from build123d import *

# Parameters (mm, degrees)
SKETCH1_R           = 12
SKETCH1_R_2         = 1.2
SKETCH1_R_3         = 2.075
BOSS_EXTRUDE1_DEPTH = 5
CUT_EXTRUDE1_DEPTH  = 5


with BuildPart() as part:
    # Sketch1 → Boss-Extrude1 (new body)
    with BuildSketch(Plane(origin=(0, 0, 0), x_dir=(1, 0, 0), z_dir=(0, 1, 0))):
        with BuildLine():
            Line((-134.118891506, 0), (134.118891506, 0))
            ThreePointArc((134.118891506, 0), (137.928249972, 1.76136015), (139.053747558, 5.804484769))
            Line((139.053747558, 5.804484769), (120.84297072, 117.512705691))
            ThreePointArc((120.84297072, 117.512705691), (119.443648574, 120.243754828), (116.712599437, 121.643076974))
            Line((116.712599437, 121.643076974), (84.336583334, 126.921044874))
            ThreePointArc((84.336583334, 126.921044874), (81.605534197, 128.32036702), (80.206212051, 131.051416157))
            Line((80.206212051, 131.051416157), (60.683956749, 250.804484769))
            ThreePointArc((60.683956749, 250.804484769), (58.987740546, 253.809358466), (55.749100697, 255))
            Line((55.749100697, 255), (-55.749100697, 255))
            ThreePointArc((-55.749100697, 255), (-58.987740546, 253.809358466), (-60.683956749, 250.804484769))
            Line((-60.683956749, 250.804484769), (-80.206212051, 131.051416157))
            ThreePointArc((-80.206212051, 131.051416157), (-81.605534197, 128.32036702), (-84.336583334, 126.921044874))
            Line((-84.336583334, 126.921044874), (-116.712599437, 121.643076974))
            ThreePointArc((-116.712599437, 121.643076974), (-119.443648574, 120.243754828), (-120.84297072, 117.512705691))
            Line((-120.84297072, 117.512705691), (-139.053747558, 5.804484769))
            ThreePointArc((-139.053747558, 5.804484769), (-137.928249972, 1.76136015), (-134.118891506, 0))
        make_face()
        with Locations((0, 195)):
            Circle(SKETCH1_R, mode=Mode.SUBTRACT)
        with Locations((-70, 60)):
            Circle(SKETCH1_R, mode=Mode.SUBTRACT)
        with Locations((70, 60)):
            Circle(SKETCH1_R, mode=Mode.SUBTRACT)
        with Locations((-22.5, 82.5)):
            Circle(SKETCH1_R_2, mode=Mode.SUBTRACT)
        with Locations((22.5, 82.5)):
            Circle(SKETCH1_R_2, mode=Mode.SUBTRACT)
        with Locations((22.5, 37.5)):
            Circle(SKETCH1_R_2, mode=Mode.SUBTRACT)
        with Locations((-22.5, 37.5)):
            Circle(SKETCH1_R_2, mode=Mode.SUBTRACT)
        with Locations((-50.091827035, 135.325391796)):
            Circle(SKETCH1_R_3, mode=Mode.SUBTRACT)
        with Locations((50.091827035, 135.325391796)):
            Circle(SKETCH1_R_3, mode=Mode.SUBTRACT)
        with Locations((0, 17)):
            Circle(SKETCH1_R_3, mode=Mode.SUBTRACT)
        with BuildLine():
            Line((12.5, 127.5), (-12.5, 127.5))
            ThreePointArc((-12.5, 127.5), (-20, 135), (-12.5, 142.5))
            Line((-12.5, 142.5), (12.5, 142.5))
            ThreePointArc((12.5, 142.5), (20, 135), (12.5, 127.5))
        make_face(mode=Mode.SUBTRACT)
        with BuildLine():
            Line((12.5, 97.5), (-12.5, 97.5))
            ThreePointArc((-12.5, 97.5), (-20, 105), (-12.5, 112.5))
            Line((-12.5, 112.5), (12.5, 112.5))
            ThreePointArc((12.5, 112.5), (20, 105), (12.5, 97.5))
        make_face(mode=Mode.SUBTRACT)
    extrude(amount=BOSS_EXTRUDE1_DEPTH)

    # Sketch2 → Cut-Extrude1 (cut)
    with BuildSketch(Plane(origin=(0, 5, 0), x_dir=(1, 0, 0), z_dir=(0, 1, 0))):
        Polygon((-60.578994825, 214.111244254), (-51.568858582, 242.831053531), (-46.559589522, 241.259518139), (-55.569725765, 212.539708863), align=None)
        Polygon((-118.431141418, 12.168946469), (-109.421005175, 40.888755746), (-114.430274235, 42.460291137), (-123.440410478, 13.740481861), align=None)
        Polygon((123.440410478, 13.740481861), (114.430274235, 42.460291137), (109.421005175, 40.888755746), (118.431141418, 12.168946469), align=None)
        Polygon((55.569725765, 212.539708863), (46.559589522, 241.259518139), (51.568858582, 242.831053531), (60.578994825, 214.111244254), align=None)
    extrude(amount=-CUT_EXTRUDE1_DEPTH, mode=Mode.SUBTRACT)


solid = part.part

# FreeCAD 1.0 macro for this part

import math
import FreeCAD as App
import Part
import Sketcher
from FreeCAD import Vector


def add_polygon(sketch, points):
    """Adds a closed chain of lines whose ends are joined by coincident constraints."""
    first, n = sketch.GeometryCount, len(points)
    for a, b in zip(points, points[1:] + points[:1]):
        sketch.addGeometry(Part.LineSegment(App.Vector(*a, 0), App.Vector(*b, 0)), False)
    for i in range(n):
        sketch.addConstraint(Sketcher.Constraint("Coincident", first + i, 2, first + (i + 1) % n, 1))

doc = App.newDocument("Part")
params = doc.addObject("Spreadsheet::Sheet", "Params")
for row, (alias, value) in enumerate([
    ("sketch1_diameter", "24 mm"),
    ("sketch1_radius", "5 mm"),
    ("sketch1_diameter2", "2.4 mm"),
    ("sketch1_radius2", "7.5 mm"),
    ("sketch1_diameter3", "4.15 mm"),
    ("pad1_length", "5 mm"),
    ("sketch2_length", "30.1 mm"),
    ("sketch2_length2", "5.25 mm"),
    ("pocket1_length", "5 mm"),
], start=1):
    params.set(f"A{row}", alias)
    params.set(f"B{row}", "=" + value)
    params.setAlias(f"B{row}", alias)

body = doc.addObject("PartDesign::Body", "Body")

sketch1 = doc.addObject("Sketcher::SketchObject", "Sketch")
body.addObject(sketch1)
sketch1.AttachmentSupport = (doc.XZ_Plane, [""])
sketch1.MapMode = "FlatFace"
sketch1.addGeometry(Part.LineSegment(Vector(-134.1, 0, 0), Vector(134.1, 0, 0)), False)
sketch1.addGeometry(Part.ArcOfCircle(Part.Circle(Vector(134.1, -5, 0), Vector(0, 0, 1), 5), math.radians(-9), math.radians(90)), False)
sketch1.addGeometry(Part.LineSegment(Vector(139.1, -5.8, 0), Vector(120.8, -117.5, 0)), False)
sketch1.addGeometry(Part.ArcOfCircle(Part.Circle(Vector(115.9, -116.7, 0), Vector(0, 0, 1), 5), math.radians(-81), math.radians(-9)), False)
sketch1.addGeometry(Part.LineSegment(Vector(116.7, -121.6, 0), Vector(84.3, -126.9, 0)), False)
sketch1.addGeometry(Part.ArcOfCircle(Part.Circle(Vector(85.1, -131.9, 0), Vector(0, 0, 1), 5), math.radians(99), math.radians(171)), False)
sketch1.addGeometry(Part.LineSegment(Vector(80.2, -131.1, 0), Vector(60.7, -250.8, 0)), False)
sketch1.addGeometry(Part.ArcOfCircle(Part.Circle(Vector(55.7, -250, 0), Vector(0, 0, 1), 5), math.radians(-90), math.radians(-9)), False)
sketch1.addGeometry(Part.LineSegment(Vector(55.7, -255, 0), Vector(-55.7, -255, 0)), False)
sketch1.addGeometry(Part.ArcOfCircle(Part.Circle(Vector(-55.7, -250, 0), Vector(0, 0, 1), 5), math.radians(-171), math.radians(-90)), False)
sketch1.addGeometry(Part.LineSegment(Vector(-60.7, -250.8, 0), Vector(-80.2, -131.1, 0)), False)
sketch1.addGeometry(Part.ArcOfCircle(Part.Circle(Vector(-85.1, -131.9, 0), Vector(0, 0, 1), 5), math.radians(9), math.radians(81)), False)
sketch1.addGeometry(Part.LineSegment(Vector(-84.3, -126.9, 0), Vector(-116.7, -121.6, 0)), False)
sketch1.addGeometry(Part.ArcOfCircle(Part.Circle(Vector(-115.9, -116.7, 0), Vector(0, 0, 1), 5), math.radians(-171), math.radians(-99)), False)
sketch1.addGeometry(Part.LineSegment(Vector(-120.8, -117.5, 0), Vector(-139.1, -5.8, 0)), False)
sketch1.addGeometry(Part.ArcOfCircle(Part.Circle(Vector(-134.1, -5, 0), Vector(0, 0, 1), 5), math.radians(90), math.radians(189)), False)
sketch1.addGeometry(Part.Circle(Vector(-70, -60, 0), Vector(0, 0, 1), 12), False)
sketch1.addGeometry(Part.Circle(Vector(-22.5, -37.5, 0), Vector(0, 0, 1), 1.2), False)
sketch1.addGeometry(Part.Circle(Vector(-22.5, -82.5, 0), Vector(0, 0, 1), 1.2), False)
sketch1.addGeometry(Part.Circle(Vector(0, -17, 0), Vector(0, 0, 1), 2.1), False)
sketch1.addGeometry(Part.Circle(Vector(22.5, -37.5, 0), Vector(0, 0, 1), 1.2), False)
sketch1.addGeometry(Part.Circle(Vector(70, -60, 0), Vector(0, 0, 1), 12), False)
sketch1.addGeometry(Part.Circle(Vector(22.5, -82.5, 0), Vector(0, 0, 1), 1.2), False)
sketch1.addGeometry(Part.ArcOfCircle(Part.Circle(Vector(12.5, -105, 0), Vector(0, 0, 1), 7.5), math.radians(-90), math.radians(90)), False)
sketch1.addGeometry(Part.LineSegment(Vector(12.5, -97.5, 0), Vector(-12.5, -97.5, 0)), False)
sketch1.addGeometry(Part.ArcOfCircle(Part.Circle(Vector(-12.5, -105, 0), Vector(0, 0, 1), 7.5), math.radians(90), math.radians(270)), False)
sketch1.addGeometry(Part.LineSegment(Vector(-12.5, -112.5, 0), Vector(12.5, -112.5, 0)), False)
sketch1.addGeometry(Part.Circle(Vector(-50.1, -135.3, 0), Vector(0, 0, 1), 2.1), False)
sketch1.addGeometry(Part.ArcOfCircle(Part.Circle(Vector(12.5, -135, 0), Vector(0, 0, 1), 7.5), math.radians(-90), math.radians(90)), False)
sketch1.addGeometry(Part.LineSegment(Vector(12.5, -127.5, 0), Vector(-12.5, -127.5, 0)), False)
sketch1.addGeometry(Part.ArcOfCircle(Part.Circle(Vector(-12.5, -135, 0), Vector(0, 0, 1), 7.5), math.radians(90), math.radians(270)), False)
sketch1.addGeometry(Part.LineSegment(Vector(-12.5, -142.5, 0), Vector(12.5, -142.5, 0)), False)
sketch1.addGeometry(Part.Circle(Vector(50.1, -135.3, 0), Vector(0, 0, 1), 2.1), False)
sketch1.addGeometry(Part.Circle(Vector(0, -195, 0), Vector(0, 0, 1), 12), False)
sketch1.addConstraint(Sketcher.Constraint("Tangent", 0, 2, 1, 2))
sketch1.addConstraint(Sketcher.Constraint("Tangent", 1, 1, 2, 1))
sketch1.addConstraint(Sketcher.Constraint("Tangent", 2, 2, 3, 2))
sketch1.addConstraint(Sketcher.Constraint("Tangent", 3, 1, 4, 1))
sketch1.addConstraint(Sketcher.Constraint("Tangent", 4, 2, 5, 1))
sketch1.addConstraint(Sketcher.Constraint("Tangent", 5, 2, 6, 1))
sketch1.addConstraint(Sketcher.Constraint("Tangent", 6, 2, 7, 2))
sketch1.addConstraint(Sketcher.Constraint("Tangent", 7, 1, 8, 1))
sketch1.addConstraint(Sketcher.Constraint("Tangent", 8, 2, 9, 2))
sketch1.addConstraint(Sketcher.Constraint("Tangent", 9, 1, 10, 1))
sketch1.addConstraint(Sketcher.Constraint("Tangent", 10, 2, 11, 1))
sketch1.addConstraint(Sketcher.Constraint("Tangent", 11, 2, 12, 1))
sketch1.addConstraint(Sketcher.Constraint("Tangent", 12, 2, 13, 2))
sketch1.addConstraint(Sketcher.Constraint("Tangent", 13, 1, 14, 1))
sketch1.addConstraint(Sketcher.Constraint("Tangent", 14, 2, 15, 2))
sketch1.addConstraint(Sketcher.Constraint("Tangent", 15, 1, 0, 1))
sketch1.addConstraint(Sketcher.Constraint("Tangent", 23, 2, 24, 1))
sketch1.addConstraint(Sketcher.Constraint("Tangent", 24, 2, 25, 1))
sketch1.addConstraint(Sketcher.Constraint("Tangent", 25, 2, 26, 1))
sketch1.addConstraint(Sketcher.Constraint("Tangent", 26, 2, 23, 1))
sketch1.addConstraint(Sketcher.Constraint("Tangent", 28, 2, 29, 1))
sketch1.addConstraint(Sketcher.Constraint("Tangent", 29, 2, 30, 1))
sketch1.addConstraint(Sketcher.Constraint("Tangent", 30, 2, 31, 1))
sketch1.addConstraint(Sketcher.Constraint("Tangent", 31, 2, 28, 1))
sketch1.addConstraint(Sketcher.Constraint("Horizontal", 0))
sketch1.addConstraint(Sketcher.Constraint("Horizontal", 8))
sketch1.addConstraint(Sketcher.Constraint("Horizontal", 24))
sketch1.addConstraint(Sketcher.Constraint("Horizontal", 26))
sketch1.addConstraint(Sketcher.Constraint("Horizontal", 29))
sketch1.addConstraint(Sketcher.Constraint("Horizontal", 31))
sketch1.addConstraint(Sketcher.Constraint("Equal", 1, 3))
sketch1.addConstraint(Sketcher.Constraint("Equal", 3, 5))
sketch1.addConstraint(Sketcher.Constraint("Equal", 5, 7))
sketch1.addConstraint(Sketcher.Constraint("Equal", 7, 9))
sketch1.addConstraint(Sketcher.Constraint("Equal", 9, 11))
sketch1.addConstraint(Sketcher.Constraint("Equal", 11, 13))
sketch1.addConstraint(Sketcher.Constraint("Equal", 13, 15))
sketch1.addConstraint(Sketcher.Constraint("Equal", 17, 18))
sketch1.addConstraint(Sketcher.Constraint("Equal", 18, 20))
sketch1.addConstraint(Sketcher.Constraint("Equal", 16, 21))
sketch1.addConstraint(Sketcher.Constraint("Equal", 20, 22))
sketch1.addConstraint(Sketcher.Constraint("Equal", 19, 27))
sketch1.addConstraint(Sketcher.Constraint("Equal", 25, 28))
sketch1.addConstraint(Sketcher.Constraint("Equal", 27, 32))
sketch1.addConstraint(Sketcher.Constraint("Equal", 21, 33))
sketch1.addConstraint(Sketcher.Constraint("Symmetric", 0, 2, 15, 1, -1, 1))
sketch1.addConstraint(Sketcher.Constraint("Symmetric", 5, 3, 11, 3, -2))
sketch1.addConstraint(Sketcher.Constraint("Symmetric", 3, 3, 13, 3, -2))
sketch1.addConstraint(Sketcher.Constraint("Symmetric", 17, 3, 20, 3, -2))
sketch1.addConstraint(Sketcher.Constraint("Symmetric", 16, 3, 21, 3, -2))
sketch1.addConstraint(Sketcher.Constraint("Symmetric", 18, 3, 22, 3, -2))
sketch1.addConstraint(Sketcher.Constraint("Symmetric", 27, 3, 32, 3, -2))
sketch1.addConstraint(Sketcher.Constraint("PointOnObject", 19, 3, -2))
sketch1.addConstraint(Sketcher.Constraint("PointOnObject", 33, 3, -2))
sketch1.addConstraint(Sketcher.Constraint("Parallel", 2, 6))
sketch1.addConstraint(Sketcher.Constraint("Perpendicular", 4, 10))
sketch1.addConstraint(Sketcher.Constraint("Perpendicular", 6, 12))
sketch1.addConstraint(Sketcher.Constraint("Vertical", 17, 3, 18, 3))
sketch1.addConstraint(Sketcher.Constraint("Vertical", 23, 3, 28, 3))
sketch1.addConstraint(Sketcher.Constraint("Vertical", 25, 3, 30, 3))
sketch1.addConstraint(Sketcher.Constraint("Diameter", 16, 24.0))
sketch1.addConstraint(Sketcher.Constraint("Radius", 1, 5.0))
sketch1.addConstraint(Sketcher.Constraint("Diameter", 17, 2.4))
sketch1.addConstraint(Sketcher.Constraint("Radius", 23, 7.5))
sketch1.addConstraint(Sketcher.Constraint("Diameter", 19, 4.15))
sketch1.addConstraint(Sketcher.Constraint("DistanceX", 24, 2, 24, 1, 25.0))
sketch1.addConstraint(Sketcher.Constraint("DistanceY", 7, 3, -1, 1, 250.0))
sketch1.addConstraint(Sketcher.Constraint("DistanceX", 16, 3, -1, 1, 70.0))
sketch1.addConstraint(Sketcher.Constraint("DistanceY", 16, 3, -1, 1, 60.0))
sketch1.addConstraint(Sketcher.Constraint("DistanceY", 19, 3, -1, 1, 17.0))
sketch1.addConstraint(Sketcher.Constraint("DistanceY", 23, 3, -1, 1, 105.0))
sketch1.addConstraint(Sketcher.Constraint("DistanceY", 28, 3, -1, 1, 135.0))
sketch1.addConstraint(Sketcher.Constraint("DistanceY", 33, 3, -1, 1, 195.0))
sketch1.addConstraint(Sketcher.Constraint("DistanceY", 18, 3, 17, 3, 45.0))
sketch1.addConstraint(Sketcher.Constraint("DistanceX", 17, 3, 20, 3, 45.0))
sketch1.addConstraint(Sketcher.Constraint("DistanceX", 23, 3, 22, 3, 10.0))
sketch1.addConstraint(Sketcher.Constraint("DistanceY", 23, 2, 22, 3, 15.0))
sketch1.addConstraint(Sketcher.Constraint("DistanceX", 8, 2, 8, 1, 111.498201))
sketch1.addConstraint(Sketcher.Constraint("DistanceY", 5, 3, -1, 1, 131.855901))
sketch1.addConstraint(Sketcher.Constraint("DistanceX", -1, 1, 3, 1, 116.712599))
sketch1.addConstraint(Sketcher.Constraint("DistanceX", 0, 1, 0, 2, 268.237783))
sketch1.addConstraint(Sketcher.Constraint("DistanceY", 27, 3, -1, 1, 135.325392))
sketch1.addConstraint(Sketcher.Constraint("DistanceX", 11, 3, 27, 3, 35.049241))
sketch1.setExpression("Constraints[60]", "Params.sketch1_diameter")
sketch1.setExpression("Constraints[61]", "Params.sketch1_radius")
sketch1.setExpression("Constraints[62]", "Params.sketch1_diameter2")
sketch1.setExpression("Constraints[63]", "Params.sketch1_radius2")
sketch1.setExpression("Constraints[64]", "Params.sketch1_diameter3")
pad1 = doc.addObject("PartDesign::Pad", "Pad")
body.addObject(pad1)
pad1.Profile = sketch1
pad1.setExpression("Length", "Params.pad1_length")
pad1.Reversed = True

sketch2 = doc.addObject("Sketcher::SketchObject", "Sketch001")
body.addObject(sketch2)
sketch2.AttachmentSupport = (doc.XZ_Plane, [""])
sketch2.MapMode = "FlatFace"
sketch2.AttachmentOffset = App.Placement(Vector(0, 0, -5), App.Rotation())
add_polygon(sketch2, [(-52, -243), (-61, -214), (-56, -213), (-47, -241)])
add_polygon(sketch2, [(-118, -12), (-109, -41), (-114, -42), (-123, -14)])
add_polygon(sketch2, [(123, -14), (114, -42), (109, -41), (118, -12)])
add_polygon(sketch2, [(47, -241), (56, -213), (61, -214), (52, -243)])
sketch2.addConstraint(Sketcher.Constraint("Symmetric", 5, 2, 8, 2, -2))
sketch2.addConstraint(Sketcher.Constraint("Symmetric", 4, 2, 9, 2, -2))
sketch2.addConstraint(Sketcher.Constraint("Symmetric", 7, 2, 10, 2, -2))
sketch2.addConstraint(Sketcher.Constraint("Symmetric", 6, 2, 11, 2, -2))
sketch2.addConstraint(Sketcher.Constraint("Symmetric", 1, 2, 12, 2, -2))
sketch2.addConstraint(Sketcher.Constraint("Symmetric", 0, 2, 13, 2, -2))
sketch2.addConstraint(Sketcher.Constraint("Symmetric", 3, 2, 14, 2, -2))
sketch2.addConstraint(Sketcher.Constraint("Symmetric", 2, 2, 15, 2, -2))
sketch2.addConstraint(Sketcher.Constraint("Perpendicular", 0, 1))
sketch2.addConstraint(Sketcher.Constraint("Perpendicular", 1, 2))
sketch2.addConstraint(Sketcher.Constraint("Perpendicular", 2, 3))
sketch2.addConstraint(Sketcher.Constraint("Perpendicular", 3, 4))
sketch2.addConstraint(Sketcher.Constraint("Perpendicular", 4, 5))
sketch2.addConstraint(Sketcher.Constraint("Perpendicular", 5, 6))
sketch2.addConstraint(Sketcher.Constraint("Perpendicular", 6, 7))
sketch2.addConstraint(Sketcher.Constraint("Equal", 2, 4))
sketch2.addConstraint(Sketcher.Constraint("Equal", 3, 5))
sketch2.addConstraint(Sketcher.Constraint("DistanceX", 1, 2, 8, 2, 170.0))
sketch2.addConstraint(Sketcher.Constraint("Distance", 0, 30.1))
sketch2.addConstraint(Sketcher.Constraint("Distance", 1, 5.25))
sketch2.addConstraint(Sketcher.Constraint("DistanceY", 1, 2, -1, 1, 212.539709))
sketch2.addConstraint(Sketcher.Constraint("DistanceX", 2, 2, -1, 1, 46.55959))
sketch2.addConstraint(Sketcher.Constraint("DistanceY", 2, 2, -1, 1, 241.259518))
sketch2.addConstraint(Sketcher.Constraint("DistanceY", 5, 2, -1, 1, 42.460291))
sketch2.setExpression("Constraints[34]", "Params.sketch2_length")
sketch2.setExpression("Constraints[35]", "Params.sketch2_length2")
pocket1 = doc.addObject("PartDesign::Pocket", "Pocket")
body.addObject(pocket1)
pocket1.Profile = sketch2
pocket1.setExpression("Length", "Params.pocket1_length")
pocket1.Reversed = True

doc.recompute()
